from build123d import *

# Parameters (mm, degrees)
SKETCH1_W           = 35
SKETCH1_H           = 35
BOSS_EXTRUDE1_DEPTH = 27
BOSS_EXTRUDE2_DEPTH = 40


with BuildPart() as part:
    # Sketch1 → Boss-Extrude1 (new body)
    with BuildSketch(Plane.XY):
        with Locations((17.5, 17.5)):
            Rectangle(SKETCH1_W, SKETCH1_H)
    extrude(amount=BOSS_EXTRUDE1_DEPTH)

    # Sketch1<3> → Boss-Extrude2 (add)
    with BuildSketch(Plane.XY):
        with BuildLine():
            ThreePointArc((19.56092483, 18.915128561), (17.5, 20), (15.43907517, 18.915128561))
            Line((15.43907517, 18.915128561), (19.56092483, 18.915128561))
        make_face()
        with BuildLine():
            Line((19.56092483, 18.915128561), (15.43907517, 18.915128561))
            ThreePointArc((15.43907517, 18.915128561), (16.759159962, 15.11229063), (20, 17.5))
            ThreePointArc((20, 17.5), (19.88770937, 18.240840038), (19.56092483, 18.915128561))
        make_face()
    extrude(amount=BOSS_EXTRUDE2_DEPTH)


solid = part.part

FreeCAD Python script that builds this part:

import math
import FreeCAD as App
import Part
import Sketcher

V = App.Vector
Q = App.Units.Quantity

doc = App.newDocument("Part")
body = doc.addObject("PartDesign::Body", "Body")

# Sketch on XY plane
sketch1 = body.newObject("Sketcher::SketchObject", "Sketch")
sketch1.AttachmentSupport = (doc.getObject("XY_Plane"), [""])
sketch1.MapMode = "FlatFace"
sketch1.addGeometry(Part.LineSegment(V(0, 35, 0), V(0, 0, 0)), False)
sketch1.addGeometry(Part.LineSegment(V(0, 0, 0), V(35, 0, 0)), False)
sketch1.addGeometry(Part.LineSegment(V(35, 0, 0), V(35, 35, 0)), False)
sketch1.addGeometry(Part.LineSegment(V(35, 35, 0), V(0, 35, 0)), False)
sketch1.addConstraint(Sketcher.Constraint("Coincident", 0, 2, 1, 1))
sketch1.addConstraint(Sketcher.Constraint("Coincident", 1, 2, 2, 1))
sketch1.addConstraint(Sketcher.Constraint("Coincident", 2, 2, 3, 1))
sketch1.addConstraint(Sketcher.Constraint("Coincident", 3, 2, 0, 1))
sketch1.addConstraint(Sketcher.Constraint("Vertical", 0))
sketch1.addConstraint(Sketcher.Constraint("Horizontal", 1))
sketch1.addConstraint(Sketcher.Constraint("Vertical", 2))
sketch1.addConstraint(Sketcher.Constraint("Horizontal", 3))
sketch1.addConstraint(Sketcher.Constraint("Coincident", 0, 2, -1, 1))
sketch1.addConstraint(Sketcher.Constraint("Equal", 3, 0))
sketch1.addConstraint(Sketcher.Constraint("DistanceX", 1, 1, 1, 2, Q("35 mm")))
pad1 = body.newObject("PartDesign::Pad", "Pad")
pad1.Profile = sketch1
pad1.Length = 27

# Sketch on XY plane
sketch2 = body.newObject("Sketcher::SketchObject", "Sketch001")
sketch2.AttachmentSupport = (doc.getObject("XY_Plane"), [""])
sketch2.MapMode = "FlatFace"
sketch2.addGeometry(Part.ArcOfCircle(Part.Circle(V(17.5, 17.5, 0), V(0, 0, 1), 2.5), math.radians(34.475336), math.radians(145.524664)), False)
sketch2.addGeometry(Part.ArcOfCircle(Part.Circle(V(17.5, 17.5, 0), V(0, 0, 1), 2.5), math.radians(145.524664), math.radians(360)), False)
sketch2.addGeometry(Part.ArcOfCircle(Part.Circle(V(17.5, 17.5, 0), V(0, 0, 1), 2.5), math.radians(0), math.radians(34.475336)), False)
sketch2.addConstraint(Sketcher.Constraint("Tangent", 0, 2, 1, 1))
sketch2.addConstraint(Sketcher.Constraint("Tangent", 1, 2, 2, 1))
sketch2.addConstraint(Sketcher.Constraint("Tangent", 2, 2, 0, 1))
sketch2.addConstraint(Sketcher.Constraint("Horizontal", 2, 3, 1, 2))
sketch2.addConstraint(Sketcher.Constraint("Horizontal", 0, 2, 2, 2))
sketch2.addConstraint(Sketcher.Constraint("Radius", 0, Q("2.5 mm")))
sketch2.addConstraint(Sketcher.Constraint("DistanceX", -1, 1, 1, 2, Q("20 mm")))
sketch2.addConstraint(Sketcher.Constraint("DistanceY", -1, 1, 0, 3, Q("17.5 mm")))
sketch2.addConstraint(Sketcher.Constraint("DistanceY", -1, 1, 0, 2, Q("18.915129 mm")))
pad2 = body.newObject("PartDesign::Pad", "Pad001")
pad2.Profile = sketch2
pad2.Length = 40

doc.recompute()
